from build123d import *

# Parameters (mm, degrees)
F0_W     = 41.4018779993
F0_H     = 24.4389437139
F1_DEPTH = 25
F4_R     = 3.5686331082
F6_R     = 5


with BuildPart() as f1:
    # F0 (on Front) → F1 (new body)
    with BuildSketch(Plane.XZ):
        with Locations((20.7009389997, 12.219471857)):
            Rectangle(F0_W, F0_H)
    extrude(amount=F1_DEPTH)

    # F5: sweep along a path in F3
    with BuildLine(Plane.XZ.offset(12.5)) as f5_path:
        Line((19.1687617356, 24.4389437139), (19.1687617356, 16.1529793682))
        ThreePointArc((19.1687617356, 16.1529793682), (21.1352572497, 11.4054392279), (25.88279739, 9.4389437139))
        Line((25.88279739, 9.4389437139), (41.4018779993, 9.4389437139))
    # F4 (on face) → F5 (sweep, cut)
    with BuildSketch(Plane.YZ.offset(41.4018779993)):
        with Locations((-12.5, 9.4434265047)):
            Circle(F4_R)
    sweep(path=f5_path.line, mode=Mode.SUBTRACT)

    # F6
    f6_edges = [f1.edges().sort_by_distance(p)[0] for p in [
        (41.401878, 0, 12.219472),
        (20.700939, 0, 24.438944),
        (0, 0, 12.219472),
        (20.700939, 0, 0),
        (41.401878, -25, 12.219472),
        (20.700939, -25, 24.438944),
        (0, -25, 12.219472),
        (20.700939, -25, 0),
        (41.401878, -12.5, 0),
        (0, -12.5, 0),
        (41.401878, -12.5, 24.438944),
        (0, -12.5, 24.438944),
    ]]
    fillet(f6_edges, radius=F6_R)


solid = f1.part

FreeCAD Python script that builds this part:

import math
import FreeCAD as App
import Part
import Sketcher


def edges_at(feature, points):
    """Names of the edges that pass closest to the given points."""
    edges = feature.Shape.Edges
    near = lambda p: min(range(len(edges)), key=lambda i: edges[i].distToShape(Part.Vertex(*p))[0])
    return sorted({f"Edge{near(p) + 1}" for p in points})

doc = App.newDocument("Part")
params = doc.addObject("Spreadsheet::Sheet", "Params")
for row, (alias, value) in enumerate([
    ("pad1_length", "25 mm"),
    ("fillet_radius", "5 mm"),
], start=1):
    params.set(f"A{row}", alias)
    params.set(f"B{row}", "=" + value)
    params.setAlias(f"B{row}", alias)

body = doc.addObject("PartDesign::Body", "Body")

# Sketch on XZ plane
sketch1 = body.newObject("Sketcher::SketchObject", "Sketch")
sketch1.AttachmentSupport = (doc.getObject("XZ_Plane"), [""])
sketch1.MapMode = "FlatFace"
sketch1.addGeometry(Part.LineSegment(App.Vector(0, 24, 0), App.Vector(0, 0, 0)), False)
sketch1.addGeometry(Part.LineSegment(App.Vector(0, 0, 0), App.Vector(41, 0, 0)), False)
sketch1.addGeometry(Part.LineSegment(App.Vector(41, 0, 0), App.Vector(41, 24, 0)), False)
sketch1.addGeometry(Part.LineSegment(App.Vector(41, 24, 0), App.Vector(0, 24, 0)), False)
sketch1.addConstraint(Sketcher.Constraint("Coincident", 0, 2, 1, 1))
sketch1.addConstraint(Sketcher.Constraint("Coincident", 1, 2, 2, 1))
sketch1.addConstraint(Sketcher.Constraint("Coincident", 2, 2, 3, 1))
sketch1.addConstraint(Sketcher.Constraint("Coincident", 3, 2, 0, 1))
sketch1.addConstraint(Sketcher.Constraint("Vertical", 0))
sketch1.addConstraint(Sketcher.Constraint("Horizontal", 1))
sketch1.addConstraint(Sketcher.Constraint("Vertical", 2))
sketch1.addConstraint(Sketcher.Constraint("Horizontal", 3))
sketch1.addConstraint(Sketcher.Constraint("Coincident", 0, 2, -1, 1))
sketch1.addConstraint(Sketcher.Constraint("DistanceX", 1, 1, 1, 2, 41.401878))
sketch1.addConstraint(Sketcher.Constraint("DistanceY", 0, 2, 0, 1, 24.438944))
pad1 = body.newObject("PartDesign::Pad", "Pad")
pad1.Profile = sketch1
pad1.setExpression("Length", "Params.pad1_length")

# Sketch on YZ plane
sketch2 = body.newObject("Sketcher::SketchObject", "Sketch001")
sketch2.AttachmentSupport = (doc.getObject("YZ_Plane"), [""])
sketch2.MapMode = "FlatFace"
sketch2.AttachmentOffset = App.Placement(App.Vector(0, 0, 41.401878), App.Rotation())
sketch2.addGeometry(Part.Circle(App.Vector(-12.5, 9.4, 0), App.Vector(0, 0, 1), 3.6), False)
sketch2.addConstraint(Sketcher.Constraint("DistanceX", 0, 3, -1, 1, 12.5))
sketch2.addConstraint(Sketcher.Constraint("Diameter", 0, 7.137266))
sketch2.addConstraint(Sketcher.Constraint("DistanceY", -1, 1, 0, 3, 9.443427))

# Sketch on XZ plane
sketch3 = body.newObject("Sketcher::SketchObject", "Sketch002")
sketch3.AttachmentSupport = (doc.getObject("XZ_Plane"), [""])
sketch3.MapMode = "FlatFace"
sketch3.AttachmentOffset = App.Placement(App.Vector(0, 0, 12.5), App.Rotation())
sketch3.addGeometry(Part.LineSegment(App.Vector(19, 24, 0), App.Vector(19, 16, 0)), False)
sketch3.addGeometry(Part.ArcOfCircle(Part.Circle(App.Vector(26, 16, 0), App.Vector(0, 0, 1), 7), math.radians(180), math.radians(270)), False)
sketch3.addGeometry(Part.LineSegment(App.Vector(26, 9, 0), App.Vector(41, 9, 0)), False)
sketch3.addConstraint(Sketcher.Constraint("Tangent", 0, 2, 1, 1))
sketch3.addConstraint(Sketcher.Constraint("Tangent", 1, 2, 2, 1))
sketch3.addConstraint(Sketcher.Constraint("Vertical", 0))
sketch3.addConstraint(Sketcher.Constraint("Horizontal", 2))
sketch3.addConstraint(Sketcher.Constraint("DistanceY", 1, 2, 0, 1, 15.0))
sketch3.addConstraint(Sketcher.Constraint("Radius", 1, 6.714036))
sketch3.addConstraint(Sketcher.Constraint("DistanceX", 2, 1, 2, 2, 15.519081))
sketch3.addConstraint(Sketcher.Constraint("DistanceY", -1, 1, 1, 3, 16.152979))
sketch3.addConstraint(Sketcher.Constraint("DistanceX", -1, 1, 0, 1, 19.168762))
doc.recompute()

subtractivepipe = body.newObject("PartDesign::SubtractivePipe", "SubtractivePipe")
subtractivepipe.Profile = sketch2
subtractivepipe.Spine = (sketch3, ["Edge1", "Edge2", "Edge3"])
doc.recompute()

fillet = body.newObject("PartDesign::Fillet", "Fillet")
fillet.Base = (subtractivepipe, edges_at(subtractivepipe, [
    (41.402, 0, 12.219),
    (20.701, 0, 24.439),
    (0, 0, 12.219),
    (20.701, 0, 0),
    (41.402, -25, 12.219),
    (20.701, -25, 24.439),
    (0, -25, 12.219),
    (20.701, -25, 0),
    (41.402, -12.5, 0),
    (0, -12.5, 0),
    (41.402, -12.5, 24.439),
    (0, -12.5, 24.439),
]))
fillet.setExpression("Radius", "Params.fillet_radius")

doc.recompute()
